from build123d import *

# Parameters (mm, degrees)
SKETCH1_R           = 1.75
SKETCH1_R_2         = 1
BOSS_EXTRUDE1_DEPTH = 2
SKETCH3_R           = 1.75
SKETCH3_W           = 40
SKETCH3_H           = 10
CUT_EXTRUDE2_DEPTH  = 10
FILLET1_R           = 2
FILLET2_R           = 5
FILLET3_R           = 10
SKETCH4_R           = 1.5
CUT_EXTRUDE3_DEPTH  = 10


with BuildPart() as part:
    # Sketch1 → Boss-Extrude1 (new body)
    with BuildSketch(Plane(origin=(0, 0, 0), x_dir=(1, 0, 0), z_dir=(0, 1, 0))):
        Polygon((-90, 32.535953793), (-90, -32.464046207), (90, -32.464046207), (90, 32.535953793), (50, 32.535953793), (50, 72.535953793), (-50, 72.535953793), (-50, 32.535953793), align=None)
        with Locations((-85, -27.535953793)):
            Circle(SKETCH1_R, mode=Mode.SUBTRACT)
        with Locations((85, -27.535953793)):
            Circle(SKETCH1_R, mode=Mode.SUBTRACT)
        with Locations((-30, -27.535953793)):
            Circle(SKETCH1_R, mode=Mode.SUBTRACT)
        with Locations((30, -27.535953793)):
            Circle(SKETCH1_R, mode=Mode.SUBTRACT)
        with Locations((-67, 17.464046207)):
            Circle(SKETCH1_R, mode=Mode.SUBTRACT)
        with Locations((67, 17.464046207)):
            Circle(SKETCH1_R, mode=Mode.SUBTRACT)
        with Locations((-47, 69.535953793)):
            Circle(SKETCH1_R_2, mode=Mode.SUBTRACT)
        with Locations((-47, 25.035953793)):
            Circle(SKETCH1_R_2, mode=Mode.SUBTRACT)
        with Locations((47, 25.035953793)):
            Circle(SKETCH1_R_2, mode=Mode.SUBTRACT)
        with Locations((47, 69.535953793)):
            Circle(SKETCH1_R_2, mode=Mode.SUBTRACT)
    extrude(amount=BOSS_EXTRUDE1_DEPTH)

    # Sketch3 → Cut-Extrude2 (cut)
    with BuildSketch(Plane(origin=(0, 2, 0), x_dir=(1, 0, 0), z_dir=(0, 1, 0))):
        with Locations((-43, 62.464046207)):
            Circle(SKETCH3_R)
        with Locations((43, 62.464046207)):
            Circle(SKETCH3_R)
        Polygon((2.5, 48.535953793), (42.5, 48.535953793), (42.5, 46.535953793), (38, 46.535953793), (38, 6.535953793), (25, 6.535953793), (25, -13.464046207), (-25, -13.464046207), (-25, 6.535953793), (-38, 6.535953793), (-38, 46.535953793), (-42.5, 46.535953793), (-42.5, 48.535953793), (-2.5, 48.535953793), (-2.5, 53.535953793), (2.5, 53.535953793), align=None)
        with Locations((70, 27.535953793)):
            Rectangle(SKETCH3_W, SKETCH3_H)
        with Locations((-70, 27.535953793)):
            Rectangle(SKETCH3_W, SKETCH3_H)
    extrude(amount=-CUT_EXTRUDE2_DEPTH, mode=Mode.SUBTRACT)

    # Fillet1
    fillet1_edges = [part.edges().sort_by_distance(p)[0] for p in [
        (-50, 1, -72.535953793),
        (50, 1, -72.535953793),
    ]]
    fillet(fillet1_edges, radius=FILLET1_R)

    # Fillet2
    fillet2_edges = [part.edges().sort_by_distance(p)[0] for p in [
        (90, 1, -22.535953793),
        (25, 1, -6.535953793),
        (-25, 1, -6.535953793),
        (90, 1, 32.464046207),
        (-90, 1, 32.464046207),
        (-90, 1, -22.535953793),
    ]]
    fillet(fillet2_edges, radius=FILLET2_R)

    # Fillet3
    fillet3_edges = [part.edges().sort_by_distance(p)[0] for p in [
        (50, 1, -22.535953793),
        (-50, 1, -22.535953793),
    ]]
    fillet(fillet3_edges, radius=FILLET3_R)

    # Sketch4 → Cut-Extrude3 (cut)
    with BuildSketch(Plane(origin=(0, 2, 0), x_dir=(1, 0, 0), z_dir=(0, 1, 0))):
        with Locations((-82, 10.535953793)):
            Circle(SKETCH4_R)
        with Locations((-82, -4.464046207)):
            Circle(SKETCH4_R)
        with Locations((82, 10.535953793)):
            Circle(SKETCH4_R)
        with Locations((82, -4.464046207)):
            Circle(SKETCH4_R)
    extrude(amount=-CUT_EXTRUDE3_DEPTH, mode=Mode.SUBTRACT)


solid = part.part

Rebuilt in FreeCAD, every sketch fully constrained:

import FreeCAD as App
import Part
import Sketcher


def edges_at(feature, points):
    """Names of the edges that pass closest to the given points."""
    edges = feature.Shape.Edges
    near = lambda p: min(range(len(edges)), key=lambda i: edges[i].distToShape(Part.Vertex(*p))[0])
    return sorted({f"Edge{near(p) + 1}" for p in points})


def add_polygon(sketch, points):
    """Adds a closed chain of lines whose ends are joined by coincident constraints."""
    first, n = sketch.GeometryCount, len(points)
    for a, b in zip(points, points[1:] + points[:1]):
        sketch.addGeometry(Part.LineSegment(App.Vector(*a, 0), App.Vector(*b, 0)), False)
    for i in range(n):
        sketch.addConstraint(Sketcher.Constraint("Coincident", first + i, 2, first + (i + 1) % n, 1))

doc = App.newDocument("Part")
body = doc.addObject("PartDesign::Body", "Body")

# Sketch on XZ plane
sketch1 = doc.addObject("Sketcher::SketchObject", "Sketch")
body.addObject(sketch1)
sketch1.AttachmentSupport = (doc.XZ_Plane, [""])
sketch1.MapMode = "FlatFace"
add_polygon(sketch1, [(-90, -32.5), (-90, 32.5), (90, 32.5), (90, -32.5), (50, -32.5), (50, -72.5), (-50, -72.5), (-50, -32.5)])  # lines 0-7
sketch1.addGeometry(Part.Circle(App.Vector(-85, 27.5, 0), App.Vector(0, 0, 1), 1.8), False)  # 8
sketch1.addGeometry(Part.Circle(App.Vector(-30, 27.5, 0), App.Vector(0, 0, 1), 1.8), False)  # 9
sketch1.addGeometry(Part.Circle(App.Vector(-67, -17.5, 0), App.Vector(0, 0, 1), 1.8), False)  # 10
sketch1.addGeometry(Part.Circle(App.Vector(30, 27.5, 0), App.Vector(0, 0, 1), 1.8), False)  # 11
sketch1.addGeometry(Part.Circle(App.Vector(85, 27.5, 0), App.Vector(0, 0, 1), 1.8), False)  # 12
sketch1.addGeometry(Part.Circle(App.Vector(67, -17.5, 0), App.Vector(0, 0, 1), 1.8), False)  # 13
sketch1.addGeometry(Part.Circle(App.Vector(-47, -25, 0), App.Vector(0, 0, 1), 1), False)  # 14
sketch1.addGeometry(Part.Circle(App.Vector(-47, -69.5, 0), App.Vector(0, 0, 1), 1), False)  # 15
sketch1.addGeometry(Part.Circle(App.Vector(47, -25, 0), App.Vector(0, 0, 1), 1), False)  # 16
sketch1.addGeometry(Part.Circle(App.Vector(47, -69.5, 0), App.Vector(0, 0, 1), 1), False)  # 17
sketch1.addConstraint(Sketcher.Constraint("Vertical", 0))
sketch1.addConstraint(Sketcher.Constraint("Horizontal", 1))
sketch1.addConstraint(Sketcher.Constraint("Vertical", 2))
sketch1.addConstraint(Sketcher.Constraint("Horizontal", 3))
sketch1.addConstraint(Sketcher.Constraint("Vertical", 4))
sketch1.addConstraint(Sketcher.Constraint("Horizontal", 5))
sketch1.addConstraint(Sketcher.Constraint("Vertical", 6))
sketch1.addConstraint(Sketcher.Constraint("Horizontal", 7))
sketch1.addConstraint(Sketcher.Constraint("Equal", 8, 9))
sketch1.addConstraint(Sketcher.Constraint("Equal", 9, 10))
sketch1.addConstraint(Sketcher.Constraint("Equal", 10, 11))
sketch1.addConstraint(Sketcher.Constraint("Equal", 11, 12))
sketch1.addConstraint(Sketcher.Constraint("Equal", 12, 13))
sketch1.addConstraint(Sketcher.Constraint("Equal", 14, 15))
sketch1.addConstraint(Sketcher.Constraint("Equal", 15, 16))
sketch1.addConstraint(Sketcher.Constraint("Equal", 16, 17))
sketch1.addConstraint(Sketcher.Constraint("Symmetric", 9, 3, 11, 3, -2))
sketch1.addConstraint(Sketcher.Constraint("Symmetric", 8, 3, 12, 3, -2))
sketch1.addConstraint(Sketcher.Constraint("Symmetric", 10, 3, 13, 3, -2))
sketch1.addConstraint(Sketcher.Constraint("Symmetric", 14, 3, 16, 3, -2))
sketch1.addConstraint(Sketcher.Constraint("Symmetric", 15, 3, 17, 3, -2))
sketch1.addConstraint(Sketcher.Constraint("Symmetric", 3, 2, 6, 2, -2))
sketch1.addConstraint(Sketcher.Constraint("Horizontal", 8, 3, 9, 3))
sketch1.addConstraint(Sketcher.Constraint("Vertical", 14, 3, 15, 3))
sketch1.addConstraint(Sketcher.Constraint("Equal", 3, 7))
sketch1.addConstraint(Sketcher.Constraint("Equal", 7, 4))
sketch1.addConstraint(Sketcher.Constraint("Diameter", 14, 2.0))
sketch1.addConstraint(Sketcher.Constraint("Diameter", 8, 3.5))
sketch1.addConstraint(Sketcher.Constraint("DistanceX", 1, 1, 1, 2, 180.0))
sketch1.addConstraint(Sketcher.Constraint("DistanceX", 3, 2, 3, 1, 40.0))
sketch1.addConstraint(Sketcher.Constraint("DistanceY", 0, 1, 0, 2, 65.0))
sketch1.addConstraint(Sketcher.Constraint("DistanceX", 8, 3, -1, 1, 85.0))
sketch1.addConstraint(Sketcher.Constraint("DistanceX", 9, 3, -1, 1, 30.0))
sketch1.addConstraint(Sketcher.Constraint("DistanceX", 10, 3, -1, 1, 67.0))
sketch1.addConstraint(Sketcher.Constraint("DistanceX", 14, 3, -1, 1, 47.0))
sketch1.addConstraint(Sketcher.Constraint("DistanceY", 10, 3, 8, 3, 45.0))
sketch1.addConstraint(Sketcher.Constraint("DistanceY", 15, 3, 0, 2, 102.0))
sketch1.addConstraint(Sketcher.Constraint("DistanceY", 15, 3, 14, 3, 44.5))
sketch1.addConstraint(Sketcher.Constraint("DistanceY", -1, 1, 8, 3, 27.535954))
sketch1.addConstraint(Sketcher.Constraint("DistanceY", 14, 3, -1, 1, 25.035954))
pad1 = doc.addObject("PartDesign::Pad", "Pad")
body.addObject(pad1)
pad1.Profile = sketch1
pad1.Length = 2
pad1.Reversed = True

# Sketch on XZ plane
sketch2 = doc.addObject("Sketcher::SketchObject", "Sketch001")
body.addObject(sketch2)
sketch2.AttachmentSupport = (doc.XZ_Plane, [""])
sketch2.MapMode = "FlatFace"
sketch2.AttachmentOffset = App.Placement(App.Vector(0, 0, -2), App.Rotation())
sketch2.addGeometry(Part.Circle(App.Vector(-43, -62.5, 0), App.Vector(0, 0, 1), 1.8), False)  # 0
sketch2.addGeometry(Part.Circle(App.Vector(43, -62.5, 0), App.Vector(0, 0, 1), 1.8), False)  # 1
add_polygon(sketch2, [(42.5, -48.5), (2.5, -48.5), (2.5, -53.5), (-2.5, -53.5), (-2.5, -48.5), (-42.5, -48.5), (-42.5, -46.5), (-38, -46.5), (-38, -6.5), (-25, -6.5), (-25, 13.5), (25, 13.5), (25, -6.5), (38, -6.5), (38, -46.5), (42.5, -46.5)])  # lines 2-17
add_polygon(sketch2, [(50, -32.5), (50, -22.5), (90, -22.5), (90, -32.5)])  # lines 18-21
add_polygon(sketch2, [(-90, -32.5), (-90, -22.5), (-50, -22.5), (-50, -32.5)])  # lines 22-25
sketch2.addConstraint(Sketcher.Constraint("Horizontal", 2))
sketch2.addConstraint(Sketcher.Constraint("Vertical", 3))
sketch2.addConstraint(Sketcher.Constraint("Horizontal", 4))
sketch2.addConstraint(Sketcher.Constraint("Vertical", 5))
sketch2.addConstraint(Sketcher.Constraint("Horizontal", 6))
sketch2.addConstraint(Sketcher.Constraint("Vertical", 7))
sketch2.addConstraint(Sketcher.Constraint("Horizontal", 8))
sketch2.addConstraint(Sketcher.Constraint("Vertical", 9))
sketch2.addConstraint(Sketcher.Constraint("Horizontal", 10))
sketch2.addConstraint(Sketcher.Constraint("Vertical", 11))
sketch2.addConstraint(Sketcher.Constraint("Horizontal", 12))
sketch2.addConstraint(Sketcher.Constraint("Vertical", 13))
sketch2.addConstraint(Sketcher.Constraint("Horizontal", 14))
sketch2.addConstraint(Sketcher.Constraint("Vertical", 15))
sketch2.addConstraint(Sketcher.Constraint("Horizontal", 16))
sketch2.addConstraint(Sketcher.Constraint("Vertical", 17))
sketch2.addConstraint(Sketcher.Constraint("Vertical", 18))
sketch2.addConstraint(Sketcher.Constraint("Horizontal", 19))
sketch2.addConstraint(Sketcher.Constraint("Vertical", 20))
sketch2.addConstraint(Sketcher.Constraint("Horizontal", 21))
sketch2.addConstraint(Sketcher.Constraint("Vertical", 22))
sketch2.addConstraint(Sketcher.Constraint("Horizontal", 23))
sketch2.addConstraint(Sketcher.Constraint("Vertical", 24))
sketch2.addConstraint(Sketcher.Constraint("Horizontal", 25))
sketch2.addConstraint(Sketcher.Constraint("Equal", 0, 1))
sketch2.addConstraint(Sketcher.Constraint("Symmetric", 0, 3, 1, 3, -2))
sketch2.addConstraint(Sketcher.Constraint("Symmetric", 2, 2, 5, 2, -2))
sketch2.addConstraint(Sketcher.Constraint("Symmetric", 10, 2, 13, 2, -2))
sketch2.addConstraint(Sketcher.Constraint("Symmetric", 8, 2, 15, 2, -2))
sketch2.addConstraint(Sketcher.Constraint("Symmetric", 19, 2, 22, 2, -2))
sketch2.addConstraint(Sketcher.Constraint("Symmetric", 21, 2, 24, 2, -2))
sketch2.addConstraint(Sketcher.Constraint("Equal", 2, 6))
sketch2.addConstraint(Sketcher.Constraint("Equal", 6, 19))
sketch2.addConstraint(Sketcher.Constraint("Equal", 4, 3))
sketch2.addConstraint(Sketcher.Constraint("Equal", 25, 9))
sketch2.addConstraint(Sketcher.Constraint("Diameter", 0, 3.5))
sketch2.addConstraint(Sketcher.Constraint("DistanceX", 2, 2, 2, 1, 40.0))
sketch2.addConstraint(Sketcher.Constraint("DistanceX", 4, 2, 4, 1, 5.0))
sketch2.addConstraint(Sketcher.Constraint("DistanceX", 10, 1, 10, 2, 13.0))
sketch2.addConstraint(Sketcher.Constraint("DistanceX", 12, 1, 12, 2, 50.0))
sketch2.addConstraint(Sketcher.Constraint("DistanceY", 7, 1, 7, 2, 2.0))
sketch2.addConstraint(Sketcher.Constraint("DistanceY", 11, 1, 11, 2, 20.0))
sketch2.addConstraint(Sketcher.Constraint("DistanceY", 18, 1, 18, 2, 10.0))
sketch2.addConstraint(Sketcher.Constraint("DistanceX", 0, 3, -1, 1, 43.0))
sketch2.addConstraint(Sketcher.Constraint("DistanceX", -1, 1, 18, 2, 50.0))
sketch2.addConstraint(Sketcher.Constraint("DistanceY", 18, 2, 14, 2, 16.0))
sketch2.addConstraint(Sketcher.Constraint("DistanceY", 0, 3, -1, 1, 62.464046))
sketch2.addConstraint(Sketcher.Constraint("DistanceY", 2, 2, -1, 1, 48.535954))
pocket1 = doc.addObject("PartDesign::Pocket", "Pocket")
body.addObject(pocket1)
pocket1.Profile = sketch2
pocket1.Length = 10
pocket1.Reversed = True
doc.recompute()

fillet = doc.addObject("PartDesign::Fillet", "Fillet")
body.addObject(fillet)
fillet.Base = (pocket1, edges_at(pocket1, [(-50, 1, -72.536), (50, 1, -72.536)]))
fillet.Radius = 2
doc.recompute()

fillet2 = doc.addObject("PartDesign::Fillet", "Fillet001")
body.addObject(fillet2)
fillet2.Base = (fillet, edges_at(fillet, [
    (90, 1, -22.536),
    (25, 1, -6.536),
    (-25, 1, -6.536),
    (90, 1, 32.464),
    (-90, 1, 32.464),
    (-90, 1, -22.536),
]))
fillet2.Radius = 5
doc.recompute()

fillet3 = doc.addObject("PartDesign::Fillet", "Fillet002")
body.addObject(fillet3)
fillet3.Base = (fillet2, edges_at(fillet2, [(50, 1, -22.536), (-50, 1, -22.536)]))
fillet3.Radius = 10

# Sketch on XZ plane
sketch3 = doc.addObject("Sketcher::SketchObject", "Sketch002")
body.addObject(sketch3)
sketch3.AttachmentSupport = (doc.XZ_Plane, [""])
sketch3.MapMode = "FlatFace"
sketch3.AttachmentOffset = App.Placement(App.Vector(0, 0, -2), App.Rotation())
sketch3.addGeometry(Part.Circle(App.Vector(-82, -10.5, 0), App.Vector(0, 0, 1), 1.5), False)
sketch3.addGeometry(Part.Circle(App.Vector(-82, 4.5, 0), App.Vector(0, 0, 1), 1.5), False)
sketch3.addGeometry(Part.Circle(App.Vector(82, -10.5, 0), App.Vector(0, 0, 1), 1.5), False)
sketch3.addGeometry(Part.Circle(App.Vector(82, 4.5, 0), App.Vector(0, 0, 1), 1.5), False)
sketch3.addConstraint(Sketcher.Constraint("Equal", 0, 1))
sketch3.addConstraint(Sketcher.Constraint("Equal", 1, 2))
sketch3.addConstraint(Sketcher.Constraint("Equal", 2, 3))
sketch3.addConstraint(Sketcher.Constraint("Symmetric", 0, 3, 2, 3, -2))
sketch3.addConstraint(Sketcher.Constraint("Symmetric", 1, 3, 3, 3, -2))
sketch3.addConstraint(Sketcher.Constraint("Vertical", 0, 3, 1, 3))
sketch3.addConstraint(Sketcher.Constraint("Diameter", 0, 3.0))
sketch3.addConstraint(Sketcher.Constraint("DistanceX", 0, 3, -1, 1, 82.0))
sketch3.addConstraint(Sketcher.Constraint("DistanceY", 0, 3, 1, 3, 15.0))
sketch3.addConstraint(Sketcher.Constraint("DistanceY", 0, 3, -1, 1, 10.535954))
pocket2 = doc.addObject("PartDesign::Pocket", "Pocket001")
body.addObject(pocket2)
pocket2.Profile = sketch3
pocket2.Length = 10
pocket2.Reversed = True

doc.recompute()
